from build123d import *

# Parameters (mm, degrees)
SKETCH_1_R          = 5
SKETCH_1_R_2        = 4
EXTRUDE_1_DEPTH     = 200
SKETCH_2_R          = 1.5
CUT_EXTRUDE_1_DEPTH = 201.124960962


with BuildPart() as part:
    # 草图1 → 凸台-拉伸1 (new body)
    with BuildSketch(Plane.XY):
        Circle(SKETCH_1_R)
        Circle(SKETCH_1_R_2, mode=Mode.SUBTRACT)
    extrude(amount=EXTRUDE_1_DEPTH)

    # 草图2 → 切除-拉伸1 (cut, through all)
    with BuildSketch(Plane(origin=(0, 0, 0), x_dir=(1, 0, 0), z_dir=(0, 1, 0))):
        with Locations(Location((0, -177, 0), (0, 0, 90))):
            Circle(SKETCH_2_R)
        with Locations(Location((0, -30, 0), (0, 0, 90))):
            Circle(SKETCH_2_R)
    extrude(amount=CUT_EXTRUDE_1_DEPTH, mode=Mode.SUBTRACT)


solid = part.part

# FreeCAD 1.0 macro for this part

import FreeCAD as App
import Part
import Sketcher

V = App.Vector
Q = App.Units.Quantity

doc = App.newDocument("Part")
body = doc.addObject("PartDesign::Body", "Body")

# Sketch on XY plane
sketch1 = body.newObject("Sketcher::SketchObject", "Sketch")
sketch1.AttachmentSupport = (doc.getObject("XY_Plane"), [""])
sketch1.MapMode = "FlatFace"
sketch1.addGeometry([
    Part.Circle(V(0, 0, 0), V(0, 0, 1), 5),
    Part.Circle(V(0, 0, 0), V(0, 0, 1), 4),
], False)
sketch1.addConstraint([
    Sketcher.Constraint("Coincident", 0, 3, -1, 1),
    Sketcher.Constraint("Coincident", 1, 3, -1, 1),
    Sketcher.Constraint("Diameter", 0, Q("10 mm")),
    Sketcher.Constraint("Diameter", 1, Q("8 mm")),
])
pad1 = body.newObject("PartDesign::Pad", "Pad")
pad1.Profile = sketch1
pad1.Length = 200

# Sketch on XZ plane
sketch2 = body.newObject("Sketcher::SketchObject", "Sketch001")
sketch2.AttachmentSupport = (doc.getObject("XZ_Plane"), [""])
sketch2.MapMode = "FlatFace"
sketch2.addGeometry([
    Part.Circle(V(0, 177, 0), V(0, 0, 1), 1.5),
    Part.Circle(V(0, 30, 0), V(0, 0, 1), 1.5),
], False)
sketch2.addConstraint([
    Sketcher.Constraint("Equal", 0, 1),
    Sketcher.Constraint("PointOnObject", 0, 3, -2),
    Sketcher.Constraint("PointOnObject", 1, 3, -2),
    Sketcher.Constraint("Diameter", 0, Q("3 mm")),
    Sketcher.Constraint("DistanceY", -1, 1, 0, 3, Q("177 mm")),
    Sketcher.Constraint("DistanceY", -1, 1, 1, 3, Q("30 mm")),
])
pocket1 = body.newObject("PartDesign::Pocket", "Pocket")
pocket1.Profile = sketch2
pocket1.Type = "ThroughAll"

doc.recompute()
